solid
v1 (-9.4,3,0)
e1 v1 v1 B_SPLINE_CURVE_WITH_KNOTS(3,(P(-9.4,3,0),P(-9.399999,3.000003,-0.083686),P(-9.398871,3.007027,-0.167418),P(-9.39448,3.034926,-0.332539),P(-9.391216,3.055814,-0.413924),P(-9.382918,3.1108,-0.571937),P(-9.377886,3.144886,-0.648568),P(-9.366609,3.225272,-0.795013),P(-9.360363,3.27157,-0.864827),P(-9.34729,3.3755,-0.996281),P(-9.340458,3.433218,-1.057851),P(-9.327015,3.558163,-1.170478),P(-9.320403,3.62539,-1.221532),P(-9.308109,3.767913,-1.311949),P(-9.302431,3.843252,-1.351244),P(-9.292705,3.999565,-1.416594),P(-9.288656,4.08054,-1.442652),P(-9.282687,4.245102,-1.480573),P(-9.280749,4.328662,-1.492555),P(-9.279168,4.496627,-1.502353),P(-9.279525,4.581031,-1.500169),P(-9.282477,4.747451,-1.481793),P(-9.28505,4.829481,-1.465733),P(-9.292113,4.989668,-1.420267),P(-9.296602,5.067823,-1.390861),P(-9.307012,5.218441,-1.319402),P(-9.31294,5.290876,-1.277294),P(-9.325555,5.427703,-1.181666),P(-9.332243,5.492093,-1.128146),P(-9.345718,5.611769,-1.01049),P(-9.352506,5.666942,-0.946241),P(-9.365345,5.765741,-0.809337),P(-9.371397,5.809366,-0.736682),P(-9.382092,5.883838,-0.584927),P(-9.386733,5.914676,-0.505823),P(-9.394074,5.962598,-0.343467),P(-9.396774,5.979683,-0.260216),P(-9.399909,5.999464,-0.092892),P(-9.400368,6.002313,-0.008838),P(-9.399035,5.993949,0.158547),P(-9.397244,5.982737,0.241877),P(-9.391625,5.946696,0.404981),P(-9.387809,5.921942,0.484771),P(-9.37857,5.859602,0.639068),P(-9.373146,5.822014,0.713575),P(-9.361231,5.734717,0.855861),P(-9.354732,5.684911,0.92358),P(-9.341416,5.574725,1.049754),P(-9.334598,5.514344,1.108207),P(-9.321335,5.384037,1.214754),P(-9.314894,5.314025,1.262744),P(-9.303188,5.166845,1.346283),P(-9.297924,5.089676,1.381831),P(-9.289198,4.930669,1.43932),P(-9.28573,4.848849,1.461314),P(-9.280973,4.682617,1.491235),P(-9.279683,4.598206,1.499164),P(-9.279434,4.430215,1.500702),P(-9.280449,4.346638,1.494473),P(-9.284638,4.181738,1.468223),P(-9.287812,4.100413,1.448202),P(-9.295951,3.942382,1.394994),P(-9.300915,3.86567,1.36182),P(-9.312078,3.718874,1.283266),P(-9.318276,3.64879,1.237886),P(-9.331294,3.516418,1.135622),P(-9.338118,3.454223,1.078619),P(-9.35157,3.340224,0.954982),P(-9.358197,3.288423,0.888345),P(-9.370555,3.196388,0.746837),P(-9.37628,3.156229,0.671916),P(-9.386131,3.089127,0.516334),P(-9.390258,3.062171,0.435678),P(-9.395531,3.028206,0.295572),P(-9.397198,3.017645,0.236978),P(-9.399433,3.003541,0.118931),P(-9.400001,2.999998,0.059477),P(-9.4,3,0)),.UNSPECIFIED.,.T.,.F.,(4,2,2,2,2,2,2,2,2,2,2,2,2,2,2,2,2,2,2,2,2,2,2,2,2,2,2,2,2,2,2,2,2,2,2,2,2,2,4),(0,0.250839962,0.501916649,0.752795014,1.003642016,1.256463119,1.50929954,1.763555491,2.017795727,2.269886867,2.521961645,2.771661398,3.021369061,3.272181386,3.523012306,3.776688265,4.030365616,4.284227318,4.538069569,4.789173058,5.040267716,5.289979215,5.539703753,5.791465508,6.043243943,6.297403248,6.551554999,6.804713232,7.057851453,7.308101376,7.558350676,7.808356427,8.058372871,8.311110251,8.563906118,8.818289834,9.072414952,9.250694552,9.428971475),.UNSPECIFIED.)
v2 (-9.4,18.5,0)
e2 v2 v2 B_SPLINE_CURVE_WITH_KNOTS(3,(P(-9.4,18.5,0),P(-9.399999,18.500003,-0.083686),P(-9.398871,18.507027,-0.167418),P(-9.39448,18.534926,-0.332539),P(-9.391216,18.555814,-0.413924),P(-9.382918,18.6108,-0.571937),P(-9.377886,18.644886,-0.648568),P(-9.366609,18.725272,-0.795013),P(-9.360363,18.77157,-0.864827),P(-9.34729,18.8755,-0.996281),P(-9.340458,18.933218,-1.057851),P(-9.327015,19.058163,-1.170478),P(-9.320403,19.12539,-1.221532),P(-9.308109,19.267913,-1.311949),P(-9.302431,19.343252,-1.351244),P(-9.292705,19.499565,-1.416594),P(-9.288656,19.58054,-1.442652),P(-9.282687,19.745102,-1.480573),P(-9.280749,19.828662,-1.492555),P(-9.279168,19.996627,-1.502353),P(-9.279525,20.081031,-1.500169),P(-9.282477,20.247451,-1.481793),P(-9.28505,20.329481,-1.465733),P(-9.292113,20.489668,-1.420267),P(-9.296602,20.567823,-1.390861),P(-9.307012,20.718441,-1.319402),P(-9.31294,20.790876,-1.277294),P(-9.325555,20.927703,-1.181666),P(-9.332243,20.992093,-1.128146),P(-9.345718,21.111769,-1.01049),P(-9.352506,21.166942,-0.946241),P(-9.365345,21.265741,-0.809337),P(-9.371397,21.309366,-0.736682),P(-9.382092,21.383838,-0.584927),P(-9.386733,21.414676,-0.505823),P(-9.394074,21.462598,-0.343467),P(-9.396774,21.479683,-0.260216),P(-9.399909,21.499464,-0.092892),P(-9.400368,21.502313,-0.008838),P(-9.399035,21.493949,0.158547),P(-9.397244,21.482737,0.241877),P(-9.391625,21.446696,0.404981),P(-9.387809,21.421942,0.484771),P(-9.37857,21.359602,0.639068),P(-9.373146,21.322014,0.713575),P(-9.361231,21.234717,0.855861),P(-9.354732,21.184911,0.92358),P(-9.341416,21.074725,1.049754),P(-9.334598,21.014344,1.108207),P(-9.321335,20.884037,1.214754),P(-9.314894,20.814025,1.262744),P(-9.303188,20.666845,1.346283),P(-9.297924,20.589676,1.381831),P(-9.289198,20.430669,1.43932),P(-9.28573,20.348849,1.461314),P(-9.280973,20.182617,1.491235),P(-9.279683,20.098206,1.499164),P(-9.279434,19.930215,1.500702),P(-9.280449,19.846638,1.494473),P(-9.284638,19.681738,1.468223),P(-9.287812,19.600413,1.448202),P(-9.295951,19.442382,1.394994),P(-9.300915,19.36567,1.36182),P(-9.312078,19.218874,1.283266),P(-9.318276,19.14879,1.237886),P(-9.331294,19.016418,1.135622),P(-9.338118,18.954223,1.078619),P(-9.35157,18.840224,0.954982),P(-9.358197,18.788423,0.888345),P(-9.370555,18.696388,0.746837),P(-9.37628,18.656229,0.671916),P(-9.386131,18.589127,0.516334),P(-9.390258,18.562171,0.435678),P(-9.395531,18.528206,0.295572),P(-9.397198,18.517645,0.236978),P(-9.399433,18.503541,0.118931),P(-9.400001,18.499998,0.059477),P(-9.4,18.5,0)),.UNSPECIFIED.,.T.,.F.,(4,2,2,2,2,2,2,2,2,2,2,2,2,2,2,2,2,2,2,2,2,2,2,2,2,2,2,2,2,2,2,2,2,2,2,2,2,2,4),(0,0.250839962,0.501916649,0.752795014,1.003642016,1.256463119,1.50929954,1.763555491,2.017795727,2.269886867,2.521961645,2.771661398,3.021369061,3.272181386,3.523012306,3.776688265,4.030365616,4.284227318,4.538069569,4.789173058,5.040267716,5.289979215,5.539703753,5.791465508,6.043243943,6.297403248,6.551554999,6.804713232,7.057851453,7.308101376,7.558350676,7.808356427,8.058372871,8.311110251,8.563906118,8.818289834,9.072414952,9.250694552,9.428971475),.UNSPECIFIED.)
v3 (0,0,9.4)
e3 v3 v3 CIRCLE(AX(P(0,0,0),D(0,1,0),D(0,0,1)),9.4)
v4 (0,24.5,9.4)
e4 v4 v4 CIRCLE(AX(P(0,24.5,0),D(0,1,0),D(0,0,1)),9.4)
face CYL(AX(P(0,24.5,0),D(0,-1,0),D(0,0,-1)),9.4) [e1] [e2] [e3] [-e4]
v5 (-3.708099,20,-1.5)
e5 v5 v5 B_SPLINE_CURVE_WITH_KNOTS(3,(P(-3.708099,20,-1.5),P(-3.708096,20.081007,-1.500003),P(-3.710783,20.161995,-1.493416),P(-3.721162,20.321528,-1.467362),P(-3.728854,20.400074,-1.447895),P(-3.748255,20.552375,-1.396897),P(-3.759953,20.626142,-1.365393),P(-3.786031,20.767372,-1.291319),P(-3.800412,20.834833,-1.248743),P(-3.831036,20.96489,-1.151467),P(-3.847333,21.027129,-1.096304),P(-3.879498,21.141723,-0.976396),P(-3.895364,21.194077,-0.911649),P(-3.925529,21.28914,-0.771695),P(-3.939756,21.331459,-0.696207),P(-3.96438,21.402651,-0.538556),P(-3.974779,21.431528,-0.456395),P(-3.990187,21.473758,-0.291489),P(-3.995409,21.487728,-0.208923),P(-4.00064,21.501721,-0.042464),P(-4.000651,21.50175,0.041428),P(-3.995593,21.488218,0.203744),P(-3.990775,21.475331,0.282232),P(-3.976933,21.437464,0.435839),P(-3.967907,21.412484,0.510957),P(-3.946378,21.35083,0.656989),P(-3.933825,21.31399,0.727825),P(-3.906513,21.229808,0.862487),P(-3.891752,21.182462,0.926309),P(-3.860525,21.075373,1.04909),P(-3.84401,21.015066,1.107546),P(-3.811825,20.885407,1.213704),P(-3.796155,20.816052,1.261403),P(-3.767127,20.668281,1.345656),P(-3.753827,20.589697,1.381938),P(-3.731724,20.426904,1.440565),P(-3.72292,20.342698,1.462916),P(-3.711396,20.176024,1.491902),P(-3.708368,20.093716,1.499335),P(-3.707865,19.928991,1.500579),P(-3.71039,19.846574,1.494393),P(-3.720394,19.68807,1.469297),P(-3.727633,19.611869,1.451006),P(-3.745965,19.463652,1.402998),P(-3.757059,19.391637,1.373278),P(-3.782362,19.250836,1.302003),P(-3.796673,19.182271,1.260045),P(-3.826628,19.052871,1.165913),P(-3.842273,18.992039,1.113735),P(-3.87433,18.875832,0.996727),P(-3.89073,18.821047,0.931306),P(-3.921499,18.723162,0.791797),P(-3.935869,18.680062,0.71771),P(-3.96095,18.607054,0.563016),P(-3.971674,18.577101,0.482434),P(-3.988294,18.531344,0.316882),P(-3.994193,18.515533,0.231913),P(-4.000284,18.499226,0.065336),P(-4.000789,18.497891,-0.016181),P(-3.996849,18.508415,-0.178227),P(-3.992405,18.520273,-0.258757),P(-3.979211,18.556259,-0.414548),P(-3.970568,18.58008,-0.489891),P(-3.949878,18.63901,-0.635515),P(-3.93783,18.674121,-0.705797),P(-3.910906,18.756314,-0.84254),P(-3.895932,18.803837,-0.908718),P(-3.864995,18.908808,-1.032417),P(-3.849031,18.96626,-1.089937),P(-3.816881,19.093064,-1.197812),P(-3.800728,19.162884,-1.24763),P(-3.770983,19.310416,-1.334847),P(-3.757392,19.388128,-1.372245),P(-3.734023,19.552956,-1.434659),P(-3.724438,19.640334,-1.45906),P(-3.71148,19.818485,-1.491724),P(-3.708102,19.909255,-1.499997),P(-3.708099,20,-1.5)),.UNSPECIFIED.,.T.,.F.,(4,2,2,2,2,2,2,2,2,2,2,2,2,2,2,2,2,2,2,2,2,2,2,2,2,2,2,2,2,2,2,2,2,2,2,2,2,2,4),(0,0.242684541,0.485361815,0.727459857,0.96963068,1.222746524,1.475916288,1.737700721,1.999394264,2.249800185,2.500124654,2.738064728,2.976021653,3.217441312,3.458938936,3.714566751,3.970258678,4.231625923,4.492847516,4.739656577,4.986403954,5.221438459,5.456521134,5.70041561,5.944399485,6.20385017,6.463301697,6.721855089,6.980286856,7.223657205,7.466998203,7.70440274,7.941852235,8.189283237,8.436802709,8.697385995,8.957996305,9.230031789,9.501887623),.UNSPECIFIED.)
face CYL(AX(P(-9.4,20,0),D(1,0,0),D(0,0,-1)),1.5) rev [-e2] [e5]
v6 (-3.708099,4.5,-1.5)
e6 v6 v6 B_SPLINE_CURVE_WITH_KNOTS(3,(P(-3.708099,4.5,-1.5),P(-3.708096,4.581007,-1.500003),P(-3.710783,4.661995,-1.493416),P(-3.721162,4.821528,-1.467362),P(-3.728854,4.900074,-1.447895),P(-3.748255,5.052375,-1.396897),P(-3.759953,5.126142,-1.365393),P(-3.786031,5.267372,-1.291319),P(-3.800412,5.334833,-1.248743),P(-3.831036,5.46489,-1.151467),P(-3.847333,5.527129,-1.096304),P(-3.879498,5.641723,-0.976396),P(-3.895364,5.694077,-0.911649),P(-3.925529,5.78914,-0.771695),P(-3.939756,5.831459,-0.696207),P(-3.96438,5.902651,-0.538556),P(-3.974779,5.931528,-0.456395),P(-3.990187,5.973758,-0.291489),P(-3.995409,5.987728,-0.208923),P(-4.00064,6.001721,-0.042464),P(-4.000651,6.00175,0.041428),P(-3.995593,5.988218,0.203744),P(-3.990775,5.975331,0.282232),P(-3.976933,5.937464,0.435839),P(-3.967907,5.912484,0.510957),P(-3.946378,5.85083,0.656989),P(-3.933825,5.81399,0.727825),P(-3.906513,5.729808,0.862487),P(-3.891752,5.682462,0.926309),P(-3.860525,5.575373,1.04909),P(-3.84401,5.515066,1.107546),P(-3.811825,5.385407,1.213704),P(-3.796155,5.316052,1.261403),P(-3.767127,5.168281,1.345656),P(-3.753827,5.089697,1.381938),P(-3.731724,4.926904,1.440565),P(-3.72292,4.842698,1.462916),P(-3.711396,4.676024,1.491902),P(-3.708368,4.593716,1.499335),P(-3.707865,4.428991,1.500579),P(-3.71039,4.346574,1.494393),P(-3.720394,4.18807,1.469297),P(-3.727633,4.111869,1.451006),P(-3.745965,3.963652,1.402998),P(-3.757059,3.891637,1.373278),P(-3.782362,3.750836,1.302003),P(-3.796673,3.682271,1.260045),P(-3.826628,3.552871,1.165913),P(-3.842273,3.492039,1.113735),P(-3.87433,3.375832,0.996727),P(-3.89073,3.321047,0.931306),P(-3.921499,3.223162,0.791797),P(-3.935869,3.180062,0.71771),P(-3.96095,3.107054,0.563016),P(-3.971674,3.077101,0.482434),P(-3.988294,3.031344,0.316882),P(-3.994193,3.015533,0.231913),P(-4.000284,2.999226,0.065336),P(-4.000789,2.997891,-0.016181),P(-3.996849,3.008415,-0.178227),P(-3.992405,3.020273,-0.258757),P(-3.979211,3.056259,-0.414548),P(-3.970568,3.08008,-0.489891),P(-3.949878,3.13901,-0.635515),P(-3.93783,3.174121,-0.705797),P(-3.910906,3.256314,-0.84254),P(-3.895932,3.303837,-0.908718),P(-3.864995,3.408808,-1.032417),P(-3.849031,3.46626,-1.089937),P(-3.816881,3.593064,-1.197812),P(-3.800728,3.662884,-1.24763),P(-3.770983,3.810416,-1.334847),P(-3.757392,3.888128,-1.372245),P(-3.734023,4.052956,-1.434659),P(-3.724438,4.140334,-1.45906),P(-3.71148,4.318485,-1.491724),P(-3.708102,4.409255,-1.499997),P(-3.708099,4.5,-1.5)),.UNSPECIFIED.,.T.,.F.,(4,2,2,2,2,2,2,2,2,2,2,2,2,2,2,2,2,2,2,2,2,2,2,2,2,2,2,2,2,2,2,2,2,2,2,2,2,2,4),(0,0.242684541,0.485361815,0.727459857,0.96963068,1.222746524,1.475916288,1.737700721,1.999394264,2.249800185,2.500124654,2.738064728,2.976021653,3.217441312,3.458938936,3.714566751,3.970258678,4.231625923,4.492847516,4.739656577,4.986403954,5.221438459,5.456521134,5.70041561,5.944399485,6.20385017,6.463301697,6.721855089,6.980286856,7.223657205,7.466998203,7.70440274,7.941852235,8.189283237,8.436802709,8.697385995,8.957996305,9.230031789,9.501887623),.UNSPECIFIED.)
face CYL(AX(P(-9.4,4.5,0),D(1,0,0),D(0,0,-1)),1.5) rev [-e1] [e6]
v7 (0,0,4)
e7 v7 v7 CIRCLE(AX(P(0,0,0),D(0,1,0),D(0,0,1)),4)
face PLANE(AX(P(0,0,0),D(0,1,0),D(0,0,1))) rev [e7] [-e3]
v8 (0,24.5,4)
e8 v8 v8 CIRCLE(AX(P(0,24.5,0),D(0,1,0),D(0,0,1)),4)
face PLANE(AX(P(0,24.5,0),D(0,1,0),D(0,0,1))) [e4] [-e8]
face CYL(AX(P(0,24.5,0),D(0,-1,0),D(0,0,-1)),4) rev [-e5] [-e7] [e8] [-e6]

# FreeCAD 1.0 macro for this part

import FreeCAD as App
import Part
import Sketcher
Q = App.Units.Quantity

doc = App.newDocument("Part")
params = doc.addObject("Spreadsheet::Sheet", "Params")
for row, (alias, value) in enumerate([
    ("sketch1_diameter", "8 mm"),
    ("sketch1_diameter2", "18.8 mm"),
    ("pad1_length", "24.5 mm"),
    ("sketch2_diameter", "3 mm"),
], start=1):
    params.set(f"A{row}", alias)
    params.set(f"B{row}", "=" + value)
    params.setAlias(f"B{row}", alias)

body = doc.addObject("PartDesign::Body", "Body")

sketch1 = doc.addObject("Sketcher::SketchObject", "Sketch")
body.addObject(sketch1)
sketch1.AttachmentSupport = (doc.XZ_Plane, [""])
sketch1.MapMode = "FlatFace"
sketch1.addGeometry(Part.Circle(App.Vector(0, 0, 0), App.Vector(0, 0, 1), 9.4), False)
sketch1.addGeometry(Part.Circle(App.Vector(0, 0, 0), App.Vector(0, 0, 1), 4), False)
sketch1.addConstraint(Sketcher.Constraint("Coincident", 0, 3, -1, 1))
sketch1.addConstraint(Sketcher.Constraint("Coincident", 1, 3, -1, 1))
sketch1.addConstraint(Sketcher.Constraint("Diameter", 1, Q("8 mm")))
sketch1.addConstraint(Sketcher.Constraint("Diameter", 0, Q("18.8 mm")))
sketch1.setExpression("Constraints[2]", "Params.sketch1_diameter")
sketch1.setExpression("Constraints[3]", "Params.sketch1_diameter2")
pad1 = doc.addObject("PartDesign::Pad", "Pad")
body.addObject(pad1)
pad1.Profile = sketch1
pad1.setExpression("Length", "Params.pad1_length")
pad1.Reversed = True

sketch2 = doc.addObject("Sketcher::SketchObject", "Sketch001")
body.addObject(sketch2)
sketch2.AttachmentSupport = (doc.YZ_Plane, [""])
sketch2.MapMode = "FlatFace"
sketch2.addGeometry(Part.Circle(App.Vector(4.5, 0, 0), App.Vector(0, 0, 1), 1.5), False)
sketch2.addGeometry(Part.Circle(App.Vector(20, 0, 0), App.Vector(0, 0, 1), 1.5), False)
sketch2.addConstraint(Sketcher.Constraint("Equal", 0, 1))
sketch2.addConstraint(Sketcher.Constraint("PointOnObject", 0, 3, -1))
sketch2.addConstraint(Sketcher.Constraint("PointOnObject", 1, 3, -1))
sketch2.addConstraint(Sketcher.Constraint("Diameter", 0, Q("3 mm")))
sketch2.addConstraint(Sketcher.Constraint("DistanceX", -1, 1, 1, 3, Q("20 mm")))
sketch2.addConstraint(Sketcher.Constraint("DistanceX", -1, 1, 0, 3, Q("4.5 mm")))
sketch2.setExpression("Constraints[3]", "Params.sketch2_diameter")
pocket1 = doc.addObject("PartDesign::Pocket", "Pocket")
body.addObject(pocket1)
pocket1.Profile = sketch2
pocket1.Type = "ThroughAll"

doc.recompute()
